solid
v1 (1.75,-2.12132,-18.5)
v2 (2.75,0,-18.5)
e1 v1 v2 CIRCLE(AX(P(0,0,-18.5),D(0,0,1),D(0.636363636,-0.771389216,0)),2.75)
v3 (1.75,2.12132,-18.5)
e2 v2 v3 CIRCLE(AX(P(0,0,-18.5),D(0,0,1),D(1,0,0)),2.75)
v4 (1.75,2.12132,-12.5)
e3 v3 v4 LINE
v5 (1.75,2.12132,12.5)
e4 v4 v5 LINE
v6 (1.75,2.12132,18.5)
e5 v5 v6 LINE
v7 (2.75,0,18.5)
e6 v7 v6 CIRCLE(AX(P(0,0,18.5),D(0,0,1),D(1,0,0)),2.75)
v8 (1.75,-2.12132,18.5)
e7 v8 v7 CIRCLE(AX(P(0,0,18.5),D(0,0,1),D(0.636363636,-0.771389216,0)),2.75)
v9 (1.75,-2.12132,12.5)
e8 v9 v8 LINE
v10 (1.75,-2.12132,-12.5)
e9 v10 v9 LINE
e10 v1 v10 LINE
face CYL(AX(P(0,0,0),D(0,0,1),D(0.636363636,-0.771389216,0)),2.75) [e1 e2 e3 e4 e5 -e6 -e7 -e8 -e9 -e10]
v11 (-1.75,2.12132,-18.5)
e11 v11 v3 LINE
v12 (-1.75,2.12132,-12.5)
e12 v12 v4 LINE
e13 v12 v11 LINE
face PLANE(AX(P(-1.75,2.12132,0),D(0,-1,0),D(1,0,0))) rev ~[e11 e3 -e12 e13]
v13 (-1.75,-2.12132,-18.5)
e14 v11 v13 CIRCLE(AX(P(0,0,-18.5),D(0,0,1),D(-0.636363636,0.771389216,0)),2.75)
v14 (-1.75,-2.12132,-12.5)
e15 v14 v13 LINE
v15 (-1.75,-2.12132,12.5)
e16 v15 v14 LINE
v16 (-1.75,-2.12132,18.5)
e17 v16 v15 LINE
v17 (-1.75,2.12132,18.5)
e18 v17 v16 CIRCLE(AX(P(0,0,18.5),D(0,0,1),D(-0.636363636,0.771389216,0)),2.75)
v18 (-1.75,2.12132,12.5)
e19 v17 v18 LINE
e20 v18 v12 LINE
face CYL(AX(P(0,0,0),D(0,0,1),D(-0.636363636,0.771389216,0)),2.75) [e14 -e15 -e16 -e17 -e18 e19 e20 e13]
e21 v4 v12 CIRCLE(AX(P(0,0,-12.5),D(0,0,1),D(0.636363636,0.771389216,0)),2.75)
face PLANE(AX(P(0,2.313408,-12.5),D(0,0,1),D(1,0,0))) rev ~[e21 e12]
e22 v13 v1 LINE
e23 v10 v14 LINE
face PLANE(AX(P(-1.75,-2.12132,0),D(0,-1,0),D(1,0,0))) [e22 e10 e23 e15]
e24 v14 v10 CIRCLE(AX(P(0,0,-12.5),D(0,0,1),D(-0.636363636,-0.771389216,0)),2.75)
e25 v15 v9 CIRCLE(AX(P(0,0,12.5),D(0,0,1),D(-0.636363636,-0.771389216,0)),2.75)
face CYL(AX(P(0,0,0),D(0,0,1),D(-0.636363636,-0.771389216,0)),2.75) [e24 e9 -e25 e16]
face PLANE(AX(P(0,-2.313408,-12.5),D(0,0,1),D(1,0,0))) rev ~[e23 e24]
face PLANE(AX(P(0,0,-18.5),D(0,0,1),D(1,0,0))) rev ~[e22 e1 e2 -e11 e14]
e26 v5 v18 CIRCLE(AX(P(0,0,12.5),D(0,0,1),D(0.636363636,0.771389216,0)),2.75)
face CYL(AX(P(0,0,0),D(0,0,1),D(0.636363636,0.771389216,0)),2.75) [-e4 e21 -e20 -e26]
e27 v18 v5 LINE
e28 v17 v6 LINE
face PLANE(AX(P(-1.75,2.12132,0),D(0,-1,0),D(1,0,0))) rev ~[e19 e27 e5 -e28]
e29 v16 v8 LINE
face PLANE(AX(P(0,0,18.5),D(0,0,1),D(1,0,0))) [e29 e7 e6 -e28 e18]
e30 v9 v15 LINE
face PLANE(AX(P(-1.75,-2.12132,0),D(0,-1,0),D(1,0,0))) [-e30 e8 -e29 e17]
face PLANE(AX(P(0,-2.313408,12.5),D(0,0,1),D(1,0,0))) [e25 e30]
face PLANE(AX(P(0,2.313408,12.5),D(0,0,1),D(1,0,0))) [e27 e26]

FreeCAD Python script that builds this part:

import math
import FreeCAD as App
import Part
import Sketcher

V = App.Vector
Q = App.Units.Quantity

doc = App.newDocument("Part")
params = doc.addObject("Spreadsheet::Sheet", "Params")
for row, (alias, value) in enumerate([
    ("sketch1_radius", "2.75 mm"),
    ("sketch1_width", "3.5 mm"),
    ("pad1_length", "25 mm"),
    ("sketch2_radius", "2.75 mm"),
    ("sketch2_width", "3.5 mm"),
    ("pad2_length", "25 mm"),
    ("sketch3_radius", "2.75 mm"),
    ("sketch3_width", "3.5 mm"),
    ("pad3_length", "37 mm"),
], start=1):
    params.set(f"A{row}", alias)
    params.set(f"B{row}", "=" + value)
    params.setAlias(f"B{row}", alias)

body = doc.addObject("PartDesign::Body", "Body")

# Sketch on XY plane
sketch1 = body.newObject("Sketcher::SketchObject", "Sketch")
sketch1.AttachmentSupport = (doc.getObject("XY_Plane"), [""])
sketch1.MapMode = "FlatFace"
sketch1.addGeometry([
    Part.LineSegment(V(-1.8, 2.1, 0), V(1.8, 2.1, 0)),
    Part.ArcOfCircle(Part.Circle(V(0, 0, 0), V(0, 0, 1), 2.8), math.radians(50), math.radians(130)),
], False)
sketch1.addConstraint([
    Sketcher.Constraint("Coincident", 0, 1, 1, 2),
    Sketcher.Constraint("Coincident", 1, 1, 0, 2),
    Sketcher.Constraint("Horizontal", 0),
    Sketcher.Constraint("Coincident", 1, 3, -1, 1),
    Sketcher.Constraint("Radius", 1, Q("2.75 mm")),
    Sketcher.Constraint("DistanceX", 0, 1, 0, 2, Q("3.5 mm")),
])
sketch1.setExpression("Constraints[4]", "Params.sketch1_radius")
sketch1.setExpression("Constraints[5]", "Params.sketch1_width")
pad1 = body.newObject("PartDesign::Pad", "Pad")
pad1.Profile = sketch1
pad1.setExpression("Length", "Params.pad1_length")
pad1.Midplane = True
body2 = doc.addObject("PartDesign::Body", "Body001")

# Sketch on XY plane
sketch2 = body2.newObject("Sketcher::SketchObject", "Sketch001")
sketch2.AttachmentSupport = (doc.getObject("XY_Plane001"), [""])
sketch2.MapMode = "FlatFace"
sketch2.addGeometry([
    Part.ArcOfCircle(Part.Circle(V(0, 0, 0), V(0, 0, 1), 2.8), math.radians(-130), math.radians(-50)),
    Part.LineSegment(V(1.8, -2.1, 0), V(-1.8, -2.1, 0)),
], False)
sketch2.addConstraint([
    Sketcher.Constraint("Coincident", 0, 1, 1, 2),
    Sketcher.Constraint("Coincident", 1, 1, 0, 2),
    Sketcher.Constraint("Horizontal", 1),
    Sketcher.Constraint("Coincident", 0, 3, -1, 1),
    Sketcher.Constraint("Radius", 0, Q("2.75 mm")),
    Sketcher.Constraint("DistanceX", 1, 2, 1, 1, Q("3.5 mm")),
])
sketch2.setExpression("Constraints[4]", "Params.sketch2_radius")
sketch2.setExpression("Constraints[5]", "Params.sketch2_width")
pad2 = body2.newObject("PartDesign::Pad", "Pad001")
pad2.Profile = sketch2
pad2.setExpression("Length", "Params.pad2_length")
pad2.Midplane = True
body.AllowCompound = True
doc.recompute()

boolean = body.newObject("PartDesign::Boolean", "Boolean")
boolean.Type = "Fuse"
boolean.addObjects([body2])

# Sketch on XY plane
sketch3 = body.newObject("Sketcher::SketchObject", "Sketch002")
sketch3.AttachmentSupport = (doc.getObject("XY_Plane"), [""])
sketch3.MapMode = "FlatFace"
sketch3.addGeometry([
    Part.LineSegment(V(-1.8, -2.1, 0), V(1.8, -2.1, 0)),  # 0
    Part.ArcOfCircle(Part.Circle(V(0, 0, 0), V(0, 0, 1), 2.8), math.radians(-50), math.radians(0)),  # 1
    Part.ArcOfCircle(Part.Circle(V(0, 0, 0), V(0, 0, 1), 2.8), math.radians(0), math.radians(50)),  # 2
    Part.LineSegment(V(1.8, 2.1, 0), V(-1.8, 2.1, 0)),  # 3
    Part.ArcOfCircle(Part.Circle(V(0, 0, 0), V(0, 0, 1), 2.8), math.radians(130), math.radians(230)),  # 4
], False)
sketch3.addConstraint([
    Sketcher.Constraint("Coincident", 0, 2, 1, 1),
    Sketcher.Constraint("Tangent", 1, 2, 2, 1),
    Sketcher.Constraint("Coincident", 2, 2, 3, 1),
    Sketcher.Constraint("Coincident", 3, 2, 4, 1),
    Sketcher.Constraint("Coincident", 4, 2, 0, 1),
    Sketcher.Constraint("Horizontal", 0),
    Sketcher.Constraint("Horizontal", 3),
    Sketcher.Constraint("Coincident", 1, 3, -1, 1),
    Sketcher.Constraint("Coincident", 4, 3, -1, 1),
    Sketcher.Constraint("Equal", 1, 2),
    Sketcher.Constraint("Equal", 2, 4),
    Sketcher.Constraint("PointOnObject", 1, 2, -1),
    Sketcher.Constraint("Vertical", 0, 2, 2, 2),
    Sketcher.Constraint("Radius", 1, Q("2.75 mm")),
    Sketcher.Constraint("DistanceX", 0, 1, 0, 2, Q("3.5 mm")),
])
sketch3.setExpression("Constraints[13]", "Params.sketch3_radius")
sketch3.setExpression("Constraints[14]", "Params.sketch3_width")
pad3 = body.newObject("PartDesign::Pad", "Pad002")
pad3.Profile = sketch3
pad3.setExpression("Length", "Params.pad3_length")
pad3.Midplane = True

doc.recompute()
